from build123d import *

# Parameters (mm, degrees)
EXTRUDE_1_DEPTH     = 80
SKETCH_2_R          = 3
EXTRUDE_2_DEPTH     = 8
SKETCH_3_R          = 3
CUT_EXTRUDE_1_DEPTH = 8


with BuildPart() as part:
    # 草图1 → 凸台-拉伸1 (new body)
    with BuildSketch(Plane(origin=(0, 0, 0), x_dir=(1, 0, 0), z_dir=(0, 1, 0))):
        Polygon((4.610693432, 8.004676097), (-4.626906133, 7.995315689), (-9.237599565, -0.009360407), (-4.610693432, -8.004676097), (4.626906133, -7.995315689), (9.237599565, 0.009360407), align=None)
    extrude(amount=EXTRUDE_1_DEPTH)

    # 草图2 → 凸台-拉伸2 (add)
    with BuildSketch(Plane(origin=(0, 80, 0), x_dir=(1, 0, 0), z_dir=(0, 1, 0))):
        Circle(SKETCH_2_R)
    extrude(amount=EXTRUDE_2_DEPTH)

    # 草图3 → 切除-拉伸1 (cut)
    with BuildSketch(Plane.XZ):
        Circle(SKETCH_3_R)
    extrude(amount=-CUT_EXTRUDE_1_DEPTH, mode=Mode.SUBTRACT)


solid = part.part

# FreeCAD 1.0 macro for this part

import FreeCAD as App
import Part
import Sketcher
from FreeCAD import Vector
Q = App.Units.Quantity

doc = App.newDocument("Part")
body = doc.addObject("PartDesign::Body", "Body")

sketch1 = body.newObject("Sketcher::SketchObject", "Sketch")
sketch1.AttachmentSupport = (doc.getObject("XZ_Plane"), [""])
sketch1.MapMode = "FlatFace"
sketch1.addGeometry([
    Part.LineSegment(Vector(5, -8, 0), Vector(-5, -8, 0)),
    Part.LineSegment(Vector(-5, -8, 0), Vector(-9, 0, 0)),
    Part.LineSegment(Vector(-9, 0, 0), Vector(-5, 8, 0)),
    Part.LineSegment(Vector(-5, 8, 0), Vector(5, 8, 0)),
    Part.LineSegment(Vector(5, 8, 0), Vector(9, 0, 0)),
    Part.LineSegment(Vector(9, 0, 0), Vector(5, -8, 0)),
], False)
sketch1.addConstraint([
    Sketcher.Constraint("Coincident", 0, 2, 1, 1),
    Sketcher.Constraint("Coincident", 1, 2, 2, 1),
    Sketcher.Constraint("Coincident", 2, 2, 3, 1),
    Sketcher.Constraint("Coincident", 3, 2, 4, 1),
    Sketcher.Constraint("Coincident", 4, 2, 5, 1),
    Sketcher.Constraint("Coincident", 5, 2, 0, 1),
    Sketcher.Constraint("Symmetric", 0, 2, 3, 2, -1, 1),
    Sketcher.Constraint("Symmetric", 1, 2, 4, 2, -1, 1),
    Sketcher.Constraint("Symmetric", 2, 2, 5, 2, -1, 1),
    Sketcher.Constraint("Equal", 0, 1),
    Sketcher.Constraint("Equal", 1, 2),
    Sketcher.Constraint("DistanceX", 1, 2, -1, 1, Q("9.2376 mm")),
    Sketcher.Constraint("DistanceX", 2, 2, 3, 2, Q("9.2376 mm")),
    Sketcher.Constraint("DistanceY", -1, 1, 1, 2, Q("0.00936 mm")),
    Sketcher.Constraint("DistanceY", 3, 2, 2, 2, Q("0.00936 mm")),
])
pad1 = body.newObject("PartDesign::Pad", "Pad")
pad1.Profile = sketch1
pad1.Length = 80
pad1.Reversed = True

sketch2 = body.newObject("Sketcher::SketchObject", "Sketch001")
sketch2.AttachmentSupport = (doc.getObject("XZ_Plane"), [""])
sketch2.MapMode = "FlatFace"
sketch2.AttachmentOffset = App.Placement(Vector(0, 0, -80), App.Rotation())
sketch2.addGeometry(Part.Circle(Vector(0, 0, 0), Vector(0, 0, 1), 3), False)
sketch2.addConstraint([
    Sketcher.Constraint("Coincident", 0, 3, -1, 1),
    Sketcher.Constraint("Diameter", 0, Q("6 mm")),
])
pad2 = body.newObject("PartDesign::Pad", "Pad001")
pad2.Profile = sketch2
pad2.Length = 8
pad2.Reversed = True

sketch3 = body.newObject("Sketcher::SketchObject", "Sketch002")
sketch3.AttachmentSupport = (doc.getObject("XZ_Plane"), [""])
sketch3.MapMode = "FlatFace"
sketch3.addGeometry(Part.Circle(Vector(0, 0, 0), Vector(0, 0, 1), 3), False)
sketch3.addConstraint([
    Sketcher.Constraint("Coincident", 0, 3, -1, 1),
    Sketcher.Constraint("Diameter", 0, Q("6 mm")),
])
pocket1 = body.newObject("PartDesign::Pocket", "Pocket")
pocket1.Profile = sketch3
pocket1.Length = 8

doc.recompute()
